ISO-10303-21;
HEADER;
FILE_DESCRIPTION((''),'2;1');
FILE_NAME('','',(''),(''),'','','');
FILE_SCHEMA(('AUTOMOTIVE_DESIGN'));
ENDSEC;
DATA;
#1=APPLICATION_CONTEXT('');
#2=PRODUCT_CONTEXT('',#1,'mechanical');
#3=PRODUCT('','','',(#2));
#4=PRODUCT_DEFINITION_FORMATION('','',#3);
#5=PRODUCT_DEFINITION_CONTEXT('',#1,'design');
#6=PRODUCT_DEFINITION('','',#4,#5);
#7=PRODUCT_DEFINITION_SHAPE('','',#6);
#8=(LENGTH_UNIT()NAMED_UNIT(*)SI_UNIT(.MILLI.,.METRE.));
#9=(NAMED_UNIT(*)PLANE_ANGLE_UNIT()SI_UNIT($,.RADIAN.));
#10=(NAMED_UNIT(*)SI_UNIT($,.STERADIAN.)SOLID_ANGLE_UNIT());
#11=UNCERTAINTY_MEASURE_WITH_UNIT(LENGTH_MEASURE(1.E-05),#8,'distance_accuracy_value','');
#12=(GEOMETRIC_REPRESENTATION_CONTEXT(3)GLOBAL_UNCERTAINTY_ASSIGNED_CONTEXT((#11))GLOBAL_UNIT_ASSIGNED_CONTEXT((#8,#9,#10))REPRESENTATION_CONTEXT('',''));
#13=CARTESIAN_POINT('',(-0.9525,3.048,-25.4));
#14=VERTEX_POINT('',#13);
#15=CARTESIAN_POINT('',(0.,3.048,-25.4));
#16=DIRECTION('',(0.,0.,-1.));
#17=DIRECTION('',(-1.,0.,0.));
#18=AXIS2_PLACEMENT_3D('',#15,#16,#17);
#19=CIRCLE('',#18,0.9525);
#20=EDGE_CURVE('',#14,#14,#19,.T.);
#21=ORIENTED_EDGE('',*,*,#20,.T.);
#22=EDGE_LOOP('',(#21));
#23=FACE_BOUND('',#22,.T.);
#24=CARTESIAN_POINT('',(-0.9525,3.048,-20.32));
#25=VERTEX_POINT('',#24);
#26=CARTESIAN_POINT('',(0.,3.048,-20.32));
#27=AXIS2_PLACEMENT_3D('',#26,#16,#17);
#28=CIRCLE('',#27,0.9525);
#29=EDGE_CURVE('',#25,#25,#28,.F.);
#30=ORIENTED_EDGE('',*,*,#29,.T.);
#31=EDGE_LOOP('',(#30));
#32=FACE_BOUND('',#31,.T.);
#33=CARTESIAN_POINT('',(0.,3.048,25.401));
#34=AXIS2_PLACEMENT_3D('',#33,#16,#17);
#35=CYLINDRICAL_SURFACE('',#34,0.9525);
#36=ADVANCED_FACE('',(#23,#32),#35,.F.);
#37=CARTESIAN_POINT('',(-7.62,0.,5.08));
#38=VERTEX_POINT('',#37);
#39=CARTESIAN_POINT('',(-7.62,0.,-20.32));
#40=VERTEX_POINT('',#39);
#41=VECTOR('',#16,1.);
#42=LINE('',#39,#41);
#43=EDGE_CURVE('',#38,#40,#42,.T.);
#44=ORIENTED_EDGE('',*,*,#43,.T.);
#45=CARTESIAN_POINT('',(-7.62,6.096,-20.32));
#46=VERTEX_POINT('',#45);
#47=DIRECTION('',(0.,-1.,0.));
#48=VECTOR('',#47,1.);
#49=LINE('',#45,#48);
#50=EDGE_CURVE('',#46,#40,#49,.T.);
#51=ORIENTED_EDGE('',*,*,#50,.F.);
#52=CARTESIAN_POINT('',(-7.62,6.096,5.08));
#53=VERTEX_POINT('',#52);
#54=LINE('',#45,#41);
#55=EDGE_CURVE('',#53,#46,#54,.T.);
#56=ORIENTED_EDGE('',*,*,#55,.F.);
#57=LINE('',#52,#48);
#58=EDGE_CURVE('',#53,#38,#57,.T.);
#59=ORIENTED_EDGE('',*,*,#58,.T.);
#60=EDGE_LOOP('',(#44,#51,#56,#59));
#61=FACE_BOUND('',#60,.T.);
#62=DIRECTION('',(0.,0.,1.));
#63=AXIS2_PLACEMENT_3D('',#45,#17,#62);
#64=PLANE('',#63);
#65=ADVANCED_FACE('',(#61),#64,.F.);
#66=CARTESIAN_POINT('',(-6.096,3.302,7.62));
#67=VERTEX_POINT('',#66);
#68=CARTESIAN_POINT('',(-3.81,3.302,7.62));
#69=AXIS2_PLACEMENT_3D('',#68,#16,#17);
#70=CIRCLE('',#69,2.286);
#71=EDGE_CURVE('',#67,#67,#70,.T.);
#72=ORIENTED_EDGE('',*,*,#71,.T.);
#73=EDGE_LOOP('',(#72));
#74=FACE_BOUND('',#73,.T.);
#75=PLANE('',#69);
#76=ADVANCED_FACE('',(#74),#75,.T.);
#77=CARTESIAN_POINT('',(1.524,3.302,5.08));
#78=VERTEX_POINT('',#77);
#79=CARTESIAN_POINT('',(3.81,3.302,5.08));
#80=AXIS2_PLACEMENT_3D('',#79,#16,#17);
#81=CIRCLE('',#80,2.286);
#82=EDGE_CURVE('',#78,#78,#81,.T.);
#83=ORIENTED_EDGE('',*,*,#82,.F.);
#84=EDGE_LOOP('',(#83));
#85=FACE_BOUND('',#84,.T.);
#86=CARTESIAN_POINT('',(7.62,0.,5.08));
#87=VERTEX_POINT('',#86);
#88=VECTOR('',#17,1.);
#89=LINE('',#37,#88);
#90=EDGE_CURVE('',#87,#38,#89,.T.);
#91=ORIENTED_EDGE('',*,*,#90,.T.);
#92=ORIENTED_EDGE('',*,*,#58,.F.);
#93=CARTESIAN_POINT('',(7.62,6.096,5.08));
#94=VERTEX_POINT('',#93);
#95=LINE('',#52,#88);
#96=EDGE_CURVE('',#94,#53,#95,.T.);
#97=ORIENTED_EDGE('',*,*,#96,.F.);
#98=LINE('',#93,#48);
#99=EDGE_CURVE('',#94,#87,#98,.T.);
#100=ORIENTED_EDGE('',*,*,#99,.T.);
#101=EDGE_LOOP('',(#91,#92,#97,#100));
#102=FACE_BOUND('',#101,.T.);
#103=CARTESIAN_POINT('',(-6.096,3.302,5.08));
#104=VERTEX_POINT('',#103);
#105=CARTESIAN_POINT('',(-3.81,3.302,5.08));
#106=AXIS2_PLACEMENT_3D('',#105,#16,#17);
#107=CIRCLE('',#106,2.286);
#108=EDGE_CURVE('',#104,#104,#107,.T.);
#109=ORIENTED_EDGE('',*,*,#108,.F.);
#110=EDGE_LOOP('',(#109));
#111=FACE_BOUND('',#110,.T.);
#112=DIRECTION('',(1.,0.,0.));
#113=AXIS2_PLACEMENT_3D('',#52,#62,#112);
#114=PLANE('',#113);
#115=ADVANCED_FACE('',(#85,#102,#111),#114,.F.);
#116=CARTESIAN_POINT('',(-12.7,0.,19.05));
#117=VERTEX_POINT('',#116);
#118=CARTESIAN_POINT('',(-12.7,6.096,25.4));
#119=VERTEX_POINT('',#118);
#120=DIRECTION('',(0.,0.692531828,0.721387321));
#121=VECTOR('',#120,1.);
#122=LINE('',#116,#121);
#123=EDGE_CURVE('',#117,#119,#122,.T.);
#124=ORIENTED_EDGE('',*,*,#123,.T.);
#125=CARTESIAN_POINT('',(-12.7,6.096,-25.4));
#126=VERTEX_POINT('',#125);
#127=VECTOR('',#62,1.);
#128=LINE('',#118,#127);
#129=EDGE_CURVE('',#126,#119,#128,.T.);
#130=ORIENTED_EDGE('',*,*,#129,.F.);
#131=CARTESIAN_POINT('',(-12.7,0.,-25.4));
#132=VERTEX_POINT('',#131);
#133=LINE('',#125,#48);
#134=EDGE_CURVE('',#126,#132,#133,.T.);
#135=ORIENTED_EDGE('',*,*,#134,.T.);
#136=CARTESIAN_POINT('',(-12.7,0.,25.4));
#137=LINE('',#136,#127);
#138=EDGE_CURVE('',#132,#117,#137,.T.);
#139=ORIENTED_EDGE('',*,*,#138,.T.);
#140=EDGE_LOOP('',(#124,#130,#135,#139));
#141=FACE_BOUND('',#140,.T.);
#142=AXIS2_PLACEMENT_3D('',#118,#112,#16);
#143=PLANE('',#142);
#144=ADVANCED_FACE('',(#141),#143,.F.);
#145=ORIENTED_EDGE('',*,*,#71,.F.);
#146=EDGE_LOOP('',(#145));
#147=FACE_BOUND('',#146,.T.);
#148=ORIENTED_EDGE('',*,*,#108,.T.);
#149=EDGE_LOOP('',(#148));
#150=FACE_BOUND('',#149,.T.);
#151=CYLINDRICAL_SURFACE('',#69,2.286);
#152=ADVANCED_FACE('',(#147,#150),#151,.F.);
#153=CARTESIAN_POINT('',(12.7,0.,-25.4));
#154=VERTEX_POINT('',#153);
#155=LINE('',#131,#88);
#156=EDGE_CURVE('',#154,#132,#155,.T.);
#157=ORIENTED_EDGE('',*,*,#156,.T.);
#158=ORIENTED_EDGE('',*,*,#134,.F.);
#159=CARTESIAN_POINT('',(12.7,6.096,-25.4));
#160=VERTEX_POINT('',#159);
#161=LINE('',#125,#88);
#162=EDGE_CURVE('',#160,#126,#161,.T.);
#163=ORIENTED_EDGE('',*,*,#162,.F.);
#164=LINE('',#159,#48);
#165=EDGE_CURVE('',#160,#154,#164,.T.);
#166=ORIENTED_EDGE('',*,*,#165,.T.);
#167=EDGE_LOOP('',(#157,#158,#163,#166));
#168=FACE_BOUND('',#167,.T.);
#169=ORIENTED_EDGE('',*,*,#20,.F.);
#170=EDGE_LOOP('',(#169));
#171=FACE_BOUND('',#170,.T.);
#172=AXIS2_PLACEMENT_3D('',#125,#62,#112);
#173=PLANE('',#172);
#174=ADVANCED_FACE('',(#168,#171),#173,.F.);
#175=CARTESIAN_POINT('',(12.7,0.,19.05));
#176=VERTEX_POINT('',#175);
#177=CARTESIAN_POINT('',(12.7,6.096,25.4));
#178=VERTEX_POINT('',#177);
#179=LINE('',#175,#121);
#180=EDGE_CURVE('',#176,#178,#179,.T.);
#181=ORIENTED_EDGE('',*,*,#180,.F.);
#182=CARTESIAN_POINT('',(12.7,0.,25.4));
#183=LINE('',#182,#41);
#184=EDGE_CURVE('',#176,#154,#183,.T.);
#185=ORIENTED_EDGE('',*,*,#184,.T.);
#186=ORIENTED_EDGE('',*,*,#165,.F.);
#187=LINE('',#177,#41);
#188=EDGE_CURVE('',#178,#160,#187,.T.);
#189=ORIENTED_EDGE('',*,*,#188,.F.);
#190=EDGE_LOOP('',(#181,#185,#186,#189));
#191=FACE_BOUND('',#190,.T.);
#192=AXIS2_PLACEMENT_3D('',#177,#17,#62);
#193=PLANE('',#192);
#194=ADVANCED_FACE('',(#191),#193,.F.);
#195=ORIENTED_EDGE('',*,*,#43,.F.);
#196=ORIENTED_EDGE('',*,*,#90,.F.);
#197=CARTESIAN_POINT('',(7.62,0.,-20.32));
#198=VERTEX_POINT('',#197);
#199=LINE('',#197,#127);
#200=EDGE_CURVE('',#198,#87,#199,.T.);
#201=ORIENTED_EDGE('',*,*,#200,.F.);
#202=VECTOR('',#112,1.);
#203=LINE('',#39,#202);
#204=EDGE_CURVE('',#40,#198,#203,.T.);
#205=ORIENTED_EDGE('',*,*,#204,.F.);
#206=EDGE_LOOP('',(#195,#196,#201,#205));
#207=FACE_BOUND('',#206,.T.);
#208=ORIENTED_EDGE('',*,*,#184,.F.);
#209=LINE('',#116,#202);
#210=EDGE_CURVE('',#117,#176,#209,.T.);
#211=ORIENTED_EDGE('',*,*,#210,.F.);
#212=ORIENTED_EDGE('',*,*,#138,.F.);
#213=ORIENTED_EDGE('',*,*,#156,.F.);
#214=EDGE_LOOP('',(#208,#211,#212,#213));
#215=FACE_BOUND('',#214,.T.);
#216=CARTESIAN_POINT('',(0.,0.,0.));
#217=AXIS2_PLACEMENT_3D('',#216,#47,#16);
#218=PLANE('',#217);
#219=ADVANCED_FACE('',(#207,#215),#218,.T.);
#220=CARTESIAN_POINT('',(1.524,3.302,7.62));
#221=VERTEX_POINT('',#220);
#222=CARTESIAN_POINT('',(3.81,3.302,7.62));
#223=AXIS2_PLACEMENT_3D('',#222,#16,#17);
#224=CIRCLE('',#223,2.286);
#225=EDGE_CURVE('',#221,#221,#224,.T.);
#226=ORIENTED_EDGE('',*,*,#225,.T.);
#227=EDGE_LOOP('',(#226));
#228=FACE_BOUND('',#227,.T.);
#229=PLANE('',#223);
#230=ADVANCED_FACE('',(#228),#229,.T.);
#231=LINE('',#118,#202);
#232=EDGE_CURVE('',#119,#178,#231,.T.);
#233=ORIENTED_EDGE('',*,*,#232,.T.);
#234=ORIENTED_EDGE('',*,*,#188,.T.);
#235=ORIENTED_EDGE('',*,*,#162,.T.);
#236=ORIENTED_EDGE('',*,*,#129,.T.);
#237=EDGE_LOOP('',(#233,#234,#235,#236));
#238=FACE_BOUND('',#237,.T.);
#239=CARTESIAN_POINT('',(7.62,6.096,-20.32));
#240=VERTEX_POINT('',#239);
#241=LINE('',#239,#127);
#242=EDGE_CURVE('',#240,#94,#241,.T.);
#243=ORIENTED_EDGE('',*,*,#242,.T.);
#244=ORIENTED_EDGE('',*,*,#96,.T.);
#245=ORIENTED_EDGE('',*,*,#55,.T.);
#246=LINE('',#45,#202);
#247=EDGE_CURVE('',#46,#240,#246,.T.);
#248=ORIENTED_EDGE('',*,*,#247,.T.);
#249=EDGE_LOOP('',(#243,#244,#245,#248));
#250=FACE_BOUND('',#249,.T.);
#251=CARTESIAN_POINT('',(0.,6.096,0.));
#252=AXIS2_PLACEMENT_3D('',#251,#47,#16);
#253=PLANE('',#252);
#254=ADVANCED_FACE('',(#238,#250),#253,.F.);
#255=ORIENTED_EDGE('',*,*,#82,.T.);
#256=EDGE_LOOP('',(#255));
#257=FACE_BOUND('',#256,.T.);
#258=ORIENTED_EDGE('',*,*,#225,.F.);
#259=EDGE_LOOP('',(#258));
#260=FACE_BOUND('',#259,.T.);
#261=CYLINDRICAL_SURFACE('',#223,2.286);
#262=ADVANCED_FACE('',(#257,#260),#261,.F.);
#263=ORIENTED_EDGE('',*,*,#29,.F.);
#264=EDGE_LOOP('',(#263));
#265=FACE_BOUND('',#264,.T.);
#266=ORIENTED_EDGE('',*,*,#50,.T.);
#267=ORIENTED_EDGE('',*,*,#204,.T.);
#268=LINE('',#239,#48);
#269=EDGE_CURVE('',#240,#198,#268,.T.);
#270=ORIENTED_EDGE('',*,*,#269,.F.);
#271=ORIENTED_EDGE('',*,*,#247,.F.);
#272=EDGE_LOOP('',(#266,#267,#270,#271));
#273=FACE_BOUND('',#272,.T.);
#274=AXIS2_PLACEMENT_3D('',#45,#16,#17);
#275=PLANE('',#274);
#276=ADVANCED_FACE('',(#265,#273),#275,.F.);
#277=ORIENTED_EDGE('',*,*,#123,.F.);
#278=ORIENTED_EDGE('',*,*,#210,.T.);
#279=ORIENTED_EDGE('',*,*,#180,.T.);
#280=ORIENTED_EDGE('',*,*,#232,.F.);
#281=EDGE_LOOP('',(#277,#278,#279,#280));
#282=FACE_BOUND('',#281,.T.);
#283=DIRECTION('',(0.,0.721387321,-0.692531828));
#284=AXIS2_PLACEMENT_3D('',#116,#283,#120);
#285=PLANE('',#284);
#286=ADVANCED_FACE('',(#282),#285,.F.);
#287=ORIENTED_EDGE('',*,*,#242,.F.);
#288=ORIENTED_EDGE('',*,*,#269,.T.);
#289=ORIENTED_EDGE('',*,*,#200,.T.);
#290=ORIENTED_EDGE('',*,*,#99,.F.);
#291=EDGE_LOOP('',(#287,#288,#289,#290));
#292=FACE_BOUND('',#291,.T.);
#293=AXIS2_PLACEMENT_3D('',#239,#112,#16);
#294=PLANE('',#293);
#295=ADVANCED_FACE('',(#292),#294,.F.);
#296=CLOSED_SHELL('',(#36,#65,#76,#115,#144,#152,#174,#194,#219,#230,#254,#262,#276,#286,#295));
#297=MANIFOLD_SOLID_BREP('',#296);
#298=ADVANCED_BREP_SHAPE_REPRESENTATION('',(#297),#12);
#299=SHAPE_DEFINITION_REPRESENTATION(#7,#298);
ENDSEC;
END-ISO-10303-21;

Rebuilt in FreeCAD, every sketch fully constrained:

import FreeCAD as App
import Part
import Sketcher
Q = App.Units.Quantity


def add_polygon(sketch, points):
    """Adds a closed chain of lines whose ends are joined by coincident constraints."""
    first, n = sketch.GeometryCount, len(points)
    for a, b in zip(points, points[1:] + points[:1]):
        sketch.addGeometry(Part.LineSegment(App.Vector(*a, 0), App.Vector(*b, 0)), False)
    for i in range(n):
        sketch.addConstraint(Sketcher.Constraint("Coincident", first + i, 2, first + (i + 1) % n, 1))

doc = App.newDocument("Part")
body = doc.addObject("PartDesign::Body", "Body")

sketch1 = body.newObject("Sketcher::SketchObject", "Sketch")
sketch1.AttachmentSupport = (doc.getObject("XZ_Plane"), [""])
sketch1.MapMode = "FlatFace"
add_polygon(sketch1, [(-12.7, -25.4), (-12.7, 25.4), (12.7, 25.4), (12.7, -25.4)])
sketch1.addConstraint(Sketcher.Constraint("Vertical", 0))
sketch1.addConstraint(Sketcher.Constraint("Horizontal", 1))
sketch1.addConstraint(Sketcher.Constraint("Vertical", 2))
sketch1.addConstraint(Sketcher.Constraint("Horizontal", 3))
sketch1.addConstraint(Sketcher.Constraint("Symmetric", 0, 2, 2, 2, -1, 1))
sketch1.addConstraint(Sketcher.Constraint("DistanceX", 1, 1, 1, 2, Q("1 in")))
sketch1.addConstraint(Sketcher.Constraint("DistanceY", 0, 1, 0, 2, Q("2 in")))
pad1 = body.newObject("PartDesign::Pad", "Pad")
pad1.Profile = sketch1
pad1.Length = Q("0.24 in")
pad1.Reversed = True

sketch2 = body.newObject("Sketcher::SketchObject", "Sketch001")
sketch2.AttachmentSupport = (doc.getObject("YZ_Plane"), [""])
sketch2.MapMode = "FlatFace"
sketch2.AttachmentOffset = App.Placement(App.Vector(0, 0, 0.5 * 25.4), App.Rotation())
add_polygon(sketch2, [(6.096, 25.4), (0, 25.4), (0, 19.05)])
sketch2.addConstraint(Sketcher.Constraint("Horizontal", 0))
sketch2.addConstraint(Sketcher.Constraint("Vertical", 1))
sketch2.addConstraint(Sketcher.Constraint("PointOnObject", 0, 2, -2))
sketch2.addConstraint(Sketcher.Constraint("DistanceY", -1, 1, 0, 2, Q("1 in")))
sketch2.addConstraint(Sketcher.Constraint("DistanceX", 0, 2, 0, 1, Q("0.24 in")))
sketch2.addConstraint(Sketcher.Constraint("DistanceY", 1, 2, 1, 1, Q("0.25 in")))
pocket1 = body.newObject("PartDesign::Pocket", "Pocket")
pocket1.Profile = sketch2
pocket1.Type = "ThroughAll"

sketch3 = body.newObject("Sketcher::SketchObject", "Sketch002")
sketch3.AttachmentSupport = (doc.getObject("XZ_Plane"), [""])
sketch3.MapMode = "FlatFace"
add_polygon(sketch3, [(-7.62, 5.08), (-7.62, -20.32), (7.62, -20.32), (7.62, 5.08)])
sketch3.addConstraint(Sketcher.Constraint("Vertical", 0))
sketch3.addConstraint(Sketcher.Constraint("Horizontal", 1))
sketch3.addConstraint(Sketcher.Constraint("Vertical", 2))
sketch3.addConstraint(Sketcher.Constraint("Horizontal", 3))
sketch3.addConstraint(Sketcher.Constraint("DistanceY", 0, 2, 0, 1, Q("1 in")))
sketch3.addConstraint(Sketcher.Constraint("DistanceX", 1, 1, 1, 2, Q("0.6 in")))
sketch3.addConstraint(Sketcher.Constraint("DistanceX", 0, 2, -1, 1, Q("0.3 in")))
sketch3.addConstraint(Sketcher.Constraint("DistanceY", 0, 2, -1, 1, Q("0.8 in")))
pocket2 = body.newObject("PartDesign::Pocket", "Pocket001")
pocket2.Profile = sketch3
pocket2.Type = "ThroughAll"

sketch4 = body.newObject("Sketcher::SketchObject", "Sketch003")
sketch4.AttachmentSupport = (doc.getObject("XY_Plane"), [""])
sketch4.MapMode = "FlatFace"
sketch4.AttachmentOffset = App.Placement(App.Vector(0, 0, 0.2 * 25.4), App.Rotation())
sketch4.addGeometry(Part.Circle(App.Vector(3.81, 3.302, 0), App.Vector(0, 0, 1), 2.286), False)
sketch4.addGeometry(Part.Circle(App.Vector(-3.81, 3.302, 0), App.Vector(0, 0, 1), 2.286), False)
sketch4.addConstraint(Sketcher.Constraint("Equal", 0, 1))
sketch4.addConstraint(Sketcher.Constraint("Symmetric", 0, 3, 1, 3, -2))
sketch4.addConstraint(Sketcher.Constraint("Diameter", 0, Q("0.18 in")))
sketch4.addConstraint(Sketcher.Constraint("DistanceX", 1, 3, 0, 3, Q("0.3 in")))
sketch4.addConstraint(Sketcher.Constraint("DistanceY", -1, 1, 0, 3, Q("0.13 in")))
pocket3 = body.newObject("PartDesign::Pocket", "Pocket002")
pocket3.Profile = sketch4
pocket3.Length = Q("0.1 in")
pocket3.Reversed = True

sketch5 = body.newObject("Sketcher::SketchObject", "Sketch004")
sketch5.AttachmentSupport = (doc.getObject("XY_Plane"), [""])
sketch5.MapMode = "FlatFace"
sketch5.AttachmentOffset = App.Placement(App.Vector(0, 0, -1 * 25.4), App.Rotation())
sketch5.addGeometry(Part.Circle(App.Vector(0, 3.048, 0), App.Vector(0, 0, 1), 0.9525), False)
sketch5.addConstraint(Sketcher.Constraint("PointOnObject", 0, 3, -2))
sketch5.addConstraint(Sketcher.Constraint("Diameter", 0, Q("0.075 in")))
sketch5.addConstraint(Sketcher.Constraint("DistanceY", -1, 1, 0, 3, Q("0.12 in")))
pocket4 = body.newObject("PartDesign::Pocket", "Pocket003")
pocket4.Profile = sketch5
pocket4.Type = "UpToFirst"
pocket4.Reversed = True

doc.recompute()
